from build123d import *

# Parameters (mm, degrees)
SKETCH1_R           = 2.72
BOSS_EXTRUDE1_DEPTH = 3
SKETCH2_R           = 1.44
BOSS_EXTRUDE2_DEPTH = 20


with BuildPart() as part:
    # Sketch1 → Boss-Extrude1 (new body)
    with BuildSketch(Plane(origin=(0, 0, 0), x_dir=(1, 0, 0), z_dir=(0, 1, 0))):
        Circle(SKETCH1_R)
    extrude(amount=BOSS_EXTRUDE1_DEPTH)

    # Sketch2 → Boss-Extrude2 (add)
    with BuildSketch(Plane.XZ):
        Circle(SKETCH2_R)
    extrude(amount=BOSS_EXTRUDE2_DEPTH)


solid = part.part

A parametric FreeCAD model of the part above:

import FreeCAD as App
import Part
import Sketcher

doc = App.newDocument("Part")
body = doc.addObject("PartDesign::Body", "Body")

sketch1 = body.newObject("Sketcher::SketchObject", "Sketch")
sketch1.AttachmentSupport = (doc.getObject("XZ_Plane"), [""])
sketch1.MapMode = "FlatFace"
sketch1.addGeometry(Part.Circle(App.Vector(0, 0, 0), App.Vector(0, 0, 1), 2.7), False)
sketch1.addConstraint([
    Sketcher.Constraint("Coincident", 0, 3, -1, 1),
    Sketcher.Constraint("Diameter", 0, 5.44),
])
pad1 = body.newObject("PartDesign::Pad", "Pad")
pad1.Profile = sketch1
pad1.Length = 3
pad1.Reversed = True

sketch2 = body.newObject("Sketcher::SketchObject", "Sketch001")
sketch2.AttachmentSupport = (doc.getObject("XZ_Plane"), [""])
sketch2.MapMode = "FlatFace"
sketch2.addGeometry(Part.Circle(App.Vector(0, 0, 0), App.Vector(0, 0, 1), 1.4), False)
sketch2.addConstraint([
    Sketcher.Constraint("Coincident", 0, 3, -1, 1),
    Sketcher.Constraint("Diameter", 0, 2.88),
])
pad2 = body.newObject("PartDesign::Pad", "Pad001")
pad2.Profile = sketch2
pad2.Length = 20

doc.recompute()
